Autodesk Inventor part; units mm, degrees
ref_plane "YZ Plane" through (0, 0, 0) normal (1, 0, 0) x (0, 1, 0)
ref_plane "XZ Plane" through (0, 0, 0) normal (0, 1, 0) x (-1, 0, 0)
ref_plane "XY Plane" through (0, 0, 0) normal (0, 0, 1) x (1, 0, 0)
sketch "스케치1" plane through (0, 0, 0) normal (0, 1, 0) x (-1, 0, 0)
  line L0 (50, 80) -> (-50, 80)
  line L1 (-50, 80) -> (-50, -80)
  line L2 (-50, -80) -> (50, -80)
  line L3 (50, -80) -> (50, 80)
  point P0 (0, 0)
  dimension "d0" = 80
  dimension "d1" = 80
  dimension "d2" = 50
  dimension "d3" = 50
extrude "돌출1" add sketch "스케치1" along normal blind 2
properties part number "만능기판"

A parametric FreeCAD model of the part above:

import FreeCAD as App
import Part
import Sketcher

V = App.Vector
Q = App.Units.Quantity

doc = App.newDocument("Part")
params = doc.addObject("Spreadsheet::Sheet", "Params")
for row, (alias, value) in enumerate([
    ("pad1_length", "2 mm"),
], start=1):
    params.set(f"A{row}", alias)
    params.set(f"B{row}", "=" + value)
    params.setAlias(f"B{row}", alias)

body = doc.addObject("PartDesign::Body", "Body")

# Sketch on XZ plane
sketch1 = body.newObject("Sketcher::SketchObject", "Sketch")
sketch1.AttachmentSupport = (doc.getObject("XZ_Plane"), [""])
sketch1.MapMode = "FlatFace"
sketch1.addGeometry([
    Part.LineSegment(V(-50, -80, 0), V(-50, 80, 0)),
    Part.LineSegment(V(-50, 80, 0), V(50, 80, 0)),
    Part.LineSegment(V(50, 80, 0), V(50, -80, 0)),
    Part.LineSegment(V(50, -80, 0), V(-50, -80, 0)),
], False)
sketch1.addConstraint([
    Sketcher.Constraint("Coincident", 0, 2, 1, 1),
    Sketcher.Constraint("Coincident", 1, 2, 2, 1),
    Sketcher.Constraint("Coincident", 2, 2, 3, 1),
    Sketcher.Constraint("Coincident", 3, 2, 0, 1),
    Sketcher.Constraint("Vertical", 0),
    Sketcher.Constraint("Horizontal", 1),
    Sketcher.Constraint("Vertical", 2),
    Sketcher.Constraint("Horizontal", 3),
    Sketcher.Constraint("Symmetric", 0, 2, 2, 2, -1, 1),
    Sketcher.Constraint("DistanceX", 0, 2, -1, 1, Q("50 mm")),
    Sketcher.Constraint("DistanceY", -1, 1, 0, 2, Q("80 mm")),
])
pad1 = body.newObject("PartDesign::Pad", "Pad")
pad1.Profile = sketch1
pad1.setExpression("Length", "Params.pad1_length")
pad1.Reversed = True

doc.recompute()
